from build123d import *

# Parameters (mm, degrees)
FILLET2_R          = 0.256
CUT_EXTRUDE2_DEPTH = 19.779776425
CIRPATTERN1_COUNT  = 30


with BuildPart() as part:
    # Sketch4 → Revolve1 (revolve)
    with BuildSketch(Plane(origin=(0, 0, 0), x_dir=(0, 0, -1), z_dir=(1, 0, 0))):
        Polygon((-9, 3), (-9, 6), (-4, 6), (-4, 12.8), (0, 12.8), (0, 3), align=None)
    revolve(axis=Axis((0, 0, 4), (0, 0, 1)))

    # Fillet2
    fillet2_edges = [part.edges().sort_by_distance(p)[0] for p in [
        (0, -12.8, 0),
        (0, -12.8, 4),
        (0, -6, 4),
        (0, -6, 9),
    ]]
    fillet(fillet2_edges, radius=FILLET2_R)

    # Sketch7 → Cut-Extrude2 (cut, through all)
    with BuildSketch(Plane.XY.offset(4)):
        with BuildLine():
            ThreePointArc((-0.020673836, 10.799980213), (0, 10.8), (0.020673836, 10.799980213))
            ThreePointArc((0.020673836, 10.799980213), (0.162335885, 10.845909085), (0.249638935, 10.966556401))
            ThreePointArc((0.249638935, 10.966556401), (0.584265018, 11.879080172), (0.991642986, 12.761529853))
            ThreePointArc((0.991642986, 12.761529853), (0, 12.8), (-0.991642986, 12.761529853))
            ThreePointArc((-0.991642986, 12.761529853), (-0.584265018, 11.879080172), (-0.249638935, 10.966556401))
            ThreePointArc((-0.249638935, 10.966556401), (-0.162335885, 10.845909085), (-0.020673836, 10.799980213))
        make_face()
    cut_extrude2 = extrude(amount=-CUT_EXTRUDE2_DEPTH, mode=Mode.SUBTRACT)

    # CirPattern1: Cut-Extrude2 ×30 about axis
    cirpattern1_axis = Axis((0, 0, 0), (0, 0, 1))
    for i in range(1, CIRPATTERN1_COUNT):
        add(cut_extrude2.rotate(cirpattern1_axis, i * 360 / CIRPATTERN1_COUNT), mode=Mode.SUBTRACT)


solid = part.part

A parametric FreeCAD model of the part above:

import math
import FreeCAD as App
import Part
import Sketcher

V = App.Vector
Q = App.Units.Quantity


def edges_at(feature, points):
    """Names of the edges that pass closest to the given points."""
    edges = feature.Shape.Edges
    near = lambda p: min(range(len(edges)), key=lambda i: edges[i].distToShape(Part.Vertex(*p))[0])
    return sorted({f"Edge{near(p) + 1}" for p in points})

doc = App.newDocument("Part")
params = doc.addObject("Spreadsheet::Sheet", "Params")
for row, (alias, value) in enumerate([
    ("sketch1_width", "3 mm"),
    ("sketch1_height", "9 mm"),
    ("sketch1_height2", "4 mm"),
    ("sketch1_width2", "9.8 mm"),
    ("revolution_angle", "360 deg"),
    ("fillet_radius", "0.256 mm"),
    ("sketch2_radius", "12 mm"),
    ("sketch2_radius2", "12.8 mm"),
], start=1):
    params.set(f"A{row}", alias)
    params.set(f"B{row}", "=" + value)
    params.setAlias(f"B{row}", alias)

body = doc.addObject("PartDesign::Body", "Body")

# Sketch on YZ plane
sketch1 = body.newObject("Sketcher::SketchObject", "Sketch")
sketch1.AttachmentSupport = (doc.getObject("YZ_Plane"), [""])
sketch1.MapMode = "FlatFace"
sketch1.addGeometry([
    Part.LineSegment(V(6, 9, 0), V(3, 9, 0)),  # 0
    Part.LineSegment(V(3, 9, 0), V(3, 0, 0)),  # 1
    Part.LineSegment(V(3, 0, 0), V(12.8, 0, 0)),  # 2
    Part.LineSegment(V(12.8, 0, 0), V(12.8, 4, 0)),  # 3
    Part.LineSegment(V(12.8, 4, 0), V(6, 4, 0)),  # 4
    Part.LineSegment(V(6, 4, 0), V(6, 9, 0)),  # 5
], False)
sketch1.addConstraint([
    Sketcher.Constraint("Coincident", 0, 2, 1, 1),
    Sketcher.Constraint("Coincident", 1, 2, 2, 1),
    Sketcher.Constraint("Coincident", 2, 2, 3, 1),
    Sketcher.Constraint("Coincident", 3, 2, 4, 1),
    Sketcher.Constraint("Coincident", 4, 2, 5, 1),
    Sketcher.Constraint("Coincident", 5, 2, 0, 1),
    Sketcher.Constraint("Horizontal", 0),
    Sketcher.Constraint("Vertical", 1),
    Sketcher.Constraint("Horizontal", 2),
    Sketcher.Constraint("Vertical", 3),
    Sketcher.Constraint("Horizontal", 4),
    Sketcher.Constraint("Vertical", 5),
    Sketcher.Constraint("PointOnObject", 1, 2, -1),
    Sketcher.Constraint("DistanceX", 0, 2, 0, 1, Q("3 mm")),
    Sketcher.Constraint("DistanceY", 1, 2, 1, 1, Q("9 mm")),
    Sketcher.Constraint("DistanceY", 3, 1, 3, 2, Q("4 mm")),
    Sketcher.Constraint("DistanceX", 2, 1, 2, 2, Q("9.8 mm")),
    Sketcher.Constraint("DistanceX", -1, 1, 0, 2, Q("3 mm")),
])
sketch1.setExpression("Constraints[13]", "Params.sketch1_width")
sketch1.setExpression("Constraints[14]", "Params.sketch1_height")
sketch1.setExpression("Constraints[15]", "Params.sketch1_height2")
sketch1.setExpression("Constraints[16]", "Params.sketch1_width2")
revolution = body.newObject("PartDesign::Revolution", "Revolution")
revolution.Profile = sketch1
revolution.ReferenceAxis = (sketch1, ["V_Axis"])
revolution.setExpression("Angle", "Params.revolution_angle")
doc.recompute()

fillet = body.newObject("PartDesign::Fillet", "Fillet")
fillet.Base = (revolution, edges_at(revolution, [
    (0, -12.8, 0),
    (0, -12.8, 4),
    (0, -6, 4),
    (0, -6, 9),
]))
fillet.setExpression("Radius", "Params.fillet_radius")

# Sketch on XY plane
sketch2 = body.newObject("Sketcher::SketchObject", "Sketch001")
sketch2.AttachmentSupport = (doc.getObject("XY_Plane"), [""])
sketch2.MapMode = "FlatFace"
sketch2.AttachmentOffset = App.Placement(V(0, 0, 4), App.Rotation())
sketch2.addGeometry([
    Part.ArcOfCircle(Part.Circle(V(0, 0, 0), V(0, 0, 1), 10.8), math.radians(89.89), math.radians(90.11)),  # 0
    Part.ArcOfCircle(Part.Circle(V(0.021, 11.04, 0), V(0, 0, 1), 0.24), math.radians(-90), math.radians(-18)),  # 1
    Part.ArcOfCircle(Part.Circle(V(11.674, 7.295, 0), V(0, 0, 1), 12), math.radians(152.9), math.radians(162.18)),  # 2
    Part.ArcOfCircle(Part.Circle(V(0, 0, 0), V(0, 0, 1), 12.8), math.radians(85.56), math.radians(94.44)),  # 3
    Part.ArcOfCircle(Part.Circle(V(-11.674, 7.295, 0), V(0, 0, 1), 12), math.radians(17.82), math.radians(27.1)),  # 4
    Part.ArcOfCircle(Part.Circle(V(-0.021, 11.04, 0), V(0, 0, 1), 0.24), math.radians(-162), math.radians(-90)),  # 5
], False)
sketch2.addConstraint([
    Sketcher.Constraint("Tangent", 0, 1, 1, 1),
    Sketcher.Constraint("Tangent", 1, 2, 2, 2),
    Sketcher.Constraint("Coincident", 2, 1, 3, 1),
    Sketcher.Constraint("Coincident", 3, 2, 4, 2),
    Sketcher.Constraint("Tangent", 4, 1, 5, 1),
    Sketcher.Constraint("Tangent", 5, 2, 0, 2),
    Sketcher.Constraint("Coincident", 3, 3, -1, 1),
    Sketcher.Constraint("Equal", 2, 4),
    Sketcher.Constraint("Equal", 1, 5),
    Sketcher.Constraint("Symmetric", 2, 3, 4, 3, -2),
    Sketcher.Constraint("PointOnObject", 0, 3, -2),
    Sketcher.Constraint("Radius", 2, Q("12 mm")),
    Sketcher.Constraint("Radius", 3, Q("12.8 mm")),
    Sketcher.Constraint("Radius", 0, Q("10.800219 mm")),
    Sketcher.Constraint("Radius", 1, Q("0.240017 mm")),
    Sketcher.Constraint("DistanceY", 0, 3, 2, 3, Q("7.295001 mm")),
    Sketcher.Constraint("DistanceY", 0, 3, -1, 1, Q("0.000219 mm")),
    Sketcher.Constraint("DistanceX", -1, 1, 2, 3, Q("11.674089 mm")),
])
sketch2.setExpression("Constraints[11]", "Params.sketch2_radius")
sketch2.setExpression("Constraints[12]", "Params.sketch2_radius2")
pocket1 = body.newObject("PartDesign::Pocket", "Pocket")
pocket1.Profile = sketch2
pocket1.Type = "ThroughAll"
doc.recompute()

polarpattern = body.newObject("PartDesign::PolarPattern", "PolarPattern")
polarpattern.Originals = [pocket1]
polarpattern.Axis = (doc.getObject("Z_Axis"), [""])
polarpattern.Angle = 360
polarpattern.Occurrences = 30
body.Tip = polarpattern

doc.recompute()
